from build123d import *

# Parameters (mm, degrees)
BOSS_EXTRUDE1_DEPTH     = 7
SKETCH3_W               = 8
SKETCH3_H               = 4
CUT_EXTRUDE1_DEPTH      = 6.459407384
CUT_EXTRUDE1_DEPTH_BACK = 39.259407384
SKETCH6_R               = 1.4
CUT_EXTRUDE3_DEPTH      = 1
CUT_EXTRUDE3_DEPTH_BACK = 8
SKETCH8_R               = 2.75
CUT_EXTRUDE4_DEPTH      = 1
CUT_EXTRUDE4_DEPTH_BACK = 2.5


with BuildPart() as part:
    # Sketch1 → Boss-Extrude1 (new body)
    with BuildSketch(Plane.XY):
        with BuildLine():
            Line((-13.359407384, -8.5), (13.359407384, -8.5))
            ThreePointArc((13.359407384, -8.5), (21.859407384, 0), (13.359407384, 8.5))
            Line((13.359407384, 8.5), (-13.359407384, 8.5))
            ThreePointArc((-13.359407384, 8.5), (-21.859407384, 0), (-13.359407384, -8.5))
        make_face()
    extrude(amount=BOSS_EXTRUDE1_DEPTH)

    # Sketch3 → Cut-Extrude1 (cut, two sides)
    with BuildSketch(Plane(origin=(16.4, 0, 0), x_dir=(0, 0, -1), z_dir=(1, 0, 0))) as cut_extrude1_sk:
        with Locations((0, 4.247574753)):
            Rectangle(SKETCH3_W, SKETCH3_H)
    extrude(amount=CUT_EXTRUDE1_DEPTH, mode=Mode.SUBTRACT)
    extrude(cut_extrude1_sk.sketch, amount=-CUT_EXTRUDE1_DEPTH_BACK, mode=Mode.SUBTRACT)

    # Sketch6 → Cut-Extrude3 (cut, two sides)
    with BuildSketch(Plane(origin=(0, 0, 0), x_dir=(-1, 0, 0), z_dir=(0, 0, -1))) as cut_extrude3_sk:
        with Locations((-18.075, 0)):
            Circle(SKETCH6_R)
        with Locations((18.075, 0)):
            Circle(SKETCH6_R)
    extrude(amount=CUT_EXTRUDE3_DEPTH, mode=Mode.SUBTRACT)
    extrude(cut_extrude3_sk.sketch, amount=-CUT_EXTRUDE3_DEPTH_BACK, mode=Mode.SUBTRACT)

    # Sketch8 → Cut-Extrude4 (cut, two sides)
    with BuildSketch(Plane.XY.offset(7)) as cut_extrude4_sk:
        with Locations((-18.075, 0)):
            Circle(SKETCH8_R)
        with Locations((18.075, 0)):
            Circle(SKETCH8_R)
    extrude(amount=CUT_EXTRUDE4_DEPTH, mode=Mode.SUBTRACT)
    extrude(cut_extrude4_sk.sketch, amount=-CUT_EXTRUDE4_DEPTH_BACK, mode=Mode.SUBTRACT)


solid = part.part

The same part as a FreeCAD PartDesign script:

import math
import FreeCAD as App
import Part
import Sketcher
from FreeCAD import Vector
Q = App.Units.Quantity


def add_polygon(sketch, points):
    """Adds a closed chain of lines whose ends are joined by coincident constraints."""
    first, n = sketch.GeometryCount, len(points)
    for a, b in zip(points, points[1:] + points[:1]):
        sketch.addGeometry(Part.LineSegment(App.Vector(*a, 0), App.Vector(*b, 0)), False)
    for i in range(n):
        sketch.addConstraint(Sketcher.Constraint("Coincident", first + i, 2, first + (i + 1) % n, 1))

doc = App.newDocument("Part")
body = doc.addObject("PartDesign::Body", "Body")

sketch1 = doc.addObject("Sketcher::SketchObject", "Sketch")
body.addObject(sketch1)
sketch1.AttachmentSupport = (doc.XY_Plane, [""])
sketch1.MapMode = "FlatFace"
sketch1.addGeometry([
    Part.LineSegment(Vector(-13, -8, 0), Vector(13, -8, 0)),
    Part.ArcOfCircle(Part.Circle(Vector(13, 0, 0), Vector(0, 0, 1), 8), math.radians(-90), math.radians(90)),
    Part.LineSegment(Vector(13, 8, 0), Vector(-13, 8, 0)),
    Part.ArcOfCircle(Part.Circle(Vector(-13, 0, 0), Vector(0, 0, 1), 8), math.radians(90), math.radians(270)),
], False)
sketch1.addConstraint([
    Sketcher.Constraint("Tangent", 0, 2, 1, 1),
    Sketcher.Constraint("Tangent", 1, 2, 2, 1),
    Sketcher.Constraint("Tangent", 2, 2, 3, 1),
    Sketcher.Constraint("Tangent", 3, 2, 0, 1),
    Sketcher.Constraint("Horizontal", 0),
    Sketcher.Constraint("Horizontal", 2),
    Sketcher.Constraint("Symmetric", 1, 3, 3, 3, -1, 1),
    Sketcher.Constraint("Radius", 1, Q("8.5 mm")),
    Sketcher.Constraint("DistanceX", 0, 1, 0, 2, Q("26.718815 mm")),
])
pad1 = doc.addObject("PartDesign::Pad", "Pad")
body.addObject(pad1)
pad1.Profile = sketch1
pad1.Length = 7

sketch2 = doc.addObject("Sketcher::SketchObject", "Sketch001")
body.addObject(sketch2)
sketch2.AttachmentSupport = (doc.YZ_Plane, [""])
sketch2.MapMode = "FlatFace"
sketch2.AttachmentOffset = App.Placement(Vector(0, 0, 16.4), App.Rotation())
add_polygon(sketch2, [(6.2, 4), (2.2, 4), (2.2, -4), (6.2, -4)])
sketch2.addConstraint([
    Sketcher.Constraint("Horizontal", 0),
    Sketcher.Constraint("Vertical", 1),
    Sketcher.Constraint("Horizontal", 2),
    Sketcher.Constraint("Vertical", 3),
    Sketcher.Constraint("DistanceX", 0, 2, 0, 1, Q("4 mm")),
    Sketcher.Constraint("DistanceY", 1, 2, 1, 1, Q("8 mm")),
    Sketcher.Constraint("DistanceY", -1, 1, 0, 2, Q("4 mm")),
    Sketcher.Constraint("DistanceX", -1, 1, 0, 2, Q("2.247575 mm")),
])
pocket1 = doc.addObject("PartDesign::Pocket", "Pocket")
body.addObject(pocket1)
pocket1.Profile = sketch2
pocket1.Type = "ThroughAll"
pocket1.Midplane = True

sketch3 = doc.addObject("Sketcher::SketchObject", "Sketch002")
body.addObject(sketch3)
sketch3.AttachmentSupport = (doc.XY_Plane, [""])
sketch3.MapMode = "FlatFace"
sketch3.addGeometry([
    Part.Circle(Vector(18.1, 0, 0), Vector(0, 0, 1), 1.4),
    Part.Circle(Vector(-18.1, 0, 0), Vector(0, 0, 1), 1.4),
], False)
sketch3.addConstraint([
    Sketcher.Constraint("Equal", 0, 1),
    Sketcher.Constraint("Symmetric", 0, 3, 1, 3, -1, 1),
    Sketcher.Constraint("PointOnObject", 0, 3, -1),
    Sketcher.Constraint("Diameter", 0, Q("2.8 mm")),
    Sketcher.Constraint("DistanceX", 1, 3, 0, 3, Q("36.15 mm")),
])
pocket2 = doc.addObject("PartDesign::Pocket", "Pocket001")
body.addObject(pocket2)
pocket2.Profile = sketch3
pocket2.Type = "ThroughAll"
pocket2.Midplane = True

sketch4 = doc.addObject("Sketcher::SketchObject", "Sketch003")
body.addObject(sketch4)
sketch4.AttachmentSupport = (doc.XY_Plane, [""])
sketch4.MapMode = "FlatFace"
sketch4.AttachmentOffset = App.Placement(Vector(0, 0, 7), App.Rotation())
sketch4.addGeometry([
    Part.Circle(Vector(-18.1, 0, 0), Vector(0, 0, 1), 2.8),
    Part.Circle(Vector(18.1, 0, 0), Vector(0, 0, 1), 2.8),
], False)
sketch4.addConstraint([
    Sketcher.Constraint("Equal", 0, 1),
    Sketcher.Constraint("Symmetric", 0, 3, 1, 3, -1, 1),
    Sketcher.Constraint("PointOnObject", 0, 3, -1),
    Sketcher.Constraint("Diameter", 0, Q("5.5 mm")),
    Sketcher.Constraint("DistanceX", 0, 3, 1, 3, Q("36.15 mm")),
])
pocket3 = doc.addObject("PartDesign::Pocket", "Pocket002")
body.addObject(pocket3)
pocket3.Profile = sketch4
pocket3.Type = "TwoLengths"
pocket3.Length = 1
pocket3.Length2 = 2.5
pocket3.Reversed = True

doc.recompute()
